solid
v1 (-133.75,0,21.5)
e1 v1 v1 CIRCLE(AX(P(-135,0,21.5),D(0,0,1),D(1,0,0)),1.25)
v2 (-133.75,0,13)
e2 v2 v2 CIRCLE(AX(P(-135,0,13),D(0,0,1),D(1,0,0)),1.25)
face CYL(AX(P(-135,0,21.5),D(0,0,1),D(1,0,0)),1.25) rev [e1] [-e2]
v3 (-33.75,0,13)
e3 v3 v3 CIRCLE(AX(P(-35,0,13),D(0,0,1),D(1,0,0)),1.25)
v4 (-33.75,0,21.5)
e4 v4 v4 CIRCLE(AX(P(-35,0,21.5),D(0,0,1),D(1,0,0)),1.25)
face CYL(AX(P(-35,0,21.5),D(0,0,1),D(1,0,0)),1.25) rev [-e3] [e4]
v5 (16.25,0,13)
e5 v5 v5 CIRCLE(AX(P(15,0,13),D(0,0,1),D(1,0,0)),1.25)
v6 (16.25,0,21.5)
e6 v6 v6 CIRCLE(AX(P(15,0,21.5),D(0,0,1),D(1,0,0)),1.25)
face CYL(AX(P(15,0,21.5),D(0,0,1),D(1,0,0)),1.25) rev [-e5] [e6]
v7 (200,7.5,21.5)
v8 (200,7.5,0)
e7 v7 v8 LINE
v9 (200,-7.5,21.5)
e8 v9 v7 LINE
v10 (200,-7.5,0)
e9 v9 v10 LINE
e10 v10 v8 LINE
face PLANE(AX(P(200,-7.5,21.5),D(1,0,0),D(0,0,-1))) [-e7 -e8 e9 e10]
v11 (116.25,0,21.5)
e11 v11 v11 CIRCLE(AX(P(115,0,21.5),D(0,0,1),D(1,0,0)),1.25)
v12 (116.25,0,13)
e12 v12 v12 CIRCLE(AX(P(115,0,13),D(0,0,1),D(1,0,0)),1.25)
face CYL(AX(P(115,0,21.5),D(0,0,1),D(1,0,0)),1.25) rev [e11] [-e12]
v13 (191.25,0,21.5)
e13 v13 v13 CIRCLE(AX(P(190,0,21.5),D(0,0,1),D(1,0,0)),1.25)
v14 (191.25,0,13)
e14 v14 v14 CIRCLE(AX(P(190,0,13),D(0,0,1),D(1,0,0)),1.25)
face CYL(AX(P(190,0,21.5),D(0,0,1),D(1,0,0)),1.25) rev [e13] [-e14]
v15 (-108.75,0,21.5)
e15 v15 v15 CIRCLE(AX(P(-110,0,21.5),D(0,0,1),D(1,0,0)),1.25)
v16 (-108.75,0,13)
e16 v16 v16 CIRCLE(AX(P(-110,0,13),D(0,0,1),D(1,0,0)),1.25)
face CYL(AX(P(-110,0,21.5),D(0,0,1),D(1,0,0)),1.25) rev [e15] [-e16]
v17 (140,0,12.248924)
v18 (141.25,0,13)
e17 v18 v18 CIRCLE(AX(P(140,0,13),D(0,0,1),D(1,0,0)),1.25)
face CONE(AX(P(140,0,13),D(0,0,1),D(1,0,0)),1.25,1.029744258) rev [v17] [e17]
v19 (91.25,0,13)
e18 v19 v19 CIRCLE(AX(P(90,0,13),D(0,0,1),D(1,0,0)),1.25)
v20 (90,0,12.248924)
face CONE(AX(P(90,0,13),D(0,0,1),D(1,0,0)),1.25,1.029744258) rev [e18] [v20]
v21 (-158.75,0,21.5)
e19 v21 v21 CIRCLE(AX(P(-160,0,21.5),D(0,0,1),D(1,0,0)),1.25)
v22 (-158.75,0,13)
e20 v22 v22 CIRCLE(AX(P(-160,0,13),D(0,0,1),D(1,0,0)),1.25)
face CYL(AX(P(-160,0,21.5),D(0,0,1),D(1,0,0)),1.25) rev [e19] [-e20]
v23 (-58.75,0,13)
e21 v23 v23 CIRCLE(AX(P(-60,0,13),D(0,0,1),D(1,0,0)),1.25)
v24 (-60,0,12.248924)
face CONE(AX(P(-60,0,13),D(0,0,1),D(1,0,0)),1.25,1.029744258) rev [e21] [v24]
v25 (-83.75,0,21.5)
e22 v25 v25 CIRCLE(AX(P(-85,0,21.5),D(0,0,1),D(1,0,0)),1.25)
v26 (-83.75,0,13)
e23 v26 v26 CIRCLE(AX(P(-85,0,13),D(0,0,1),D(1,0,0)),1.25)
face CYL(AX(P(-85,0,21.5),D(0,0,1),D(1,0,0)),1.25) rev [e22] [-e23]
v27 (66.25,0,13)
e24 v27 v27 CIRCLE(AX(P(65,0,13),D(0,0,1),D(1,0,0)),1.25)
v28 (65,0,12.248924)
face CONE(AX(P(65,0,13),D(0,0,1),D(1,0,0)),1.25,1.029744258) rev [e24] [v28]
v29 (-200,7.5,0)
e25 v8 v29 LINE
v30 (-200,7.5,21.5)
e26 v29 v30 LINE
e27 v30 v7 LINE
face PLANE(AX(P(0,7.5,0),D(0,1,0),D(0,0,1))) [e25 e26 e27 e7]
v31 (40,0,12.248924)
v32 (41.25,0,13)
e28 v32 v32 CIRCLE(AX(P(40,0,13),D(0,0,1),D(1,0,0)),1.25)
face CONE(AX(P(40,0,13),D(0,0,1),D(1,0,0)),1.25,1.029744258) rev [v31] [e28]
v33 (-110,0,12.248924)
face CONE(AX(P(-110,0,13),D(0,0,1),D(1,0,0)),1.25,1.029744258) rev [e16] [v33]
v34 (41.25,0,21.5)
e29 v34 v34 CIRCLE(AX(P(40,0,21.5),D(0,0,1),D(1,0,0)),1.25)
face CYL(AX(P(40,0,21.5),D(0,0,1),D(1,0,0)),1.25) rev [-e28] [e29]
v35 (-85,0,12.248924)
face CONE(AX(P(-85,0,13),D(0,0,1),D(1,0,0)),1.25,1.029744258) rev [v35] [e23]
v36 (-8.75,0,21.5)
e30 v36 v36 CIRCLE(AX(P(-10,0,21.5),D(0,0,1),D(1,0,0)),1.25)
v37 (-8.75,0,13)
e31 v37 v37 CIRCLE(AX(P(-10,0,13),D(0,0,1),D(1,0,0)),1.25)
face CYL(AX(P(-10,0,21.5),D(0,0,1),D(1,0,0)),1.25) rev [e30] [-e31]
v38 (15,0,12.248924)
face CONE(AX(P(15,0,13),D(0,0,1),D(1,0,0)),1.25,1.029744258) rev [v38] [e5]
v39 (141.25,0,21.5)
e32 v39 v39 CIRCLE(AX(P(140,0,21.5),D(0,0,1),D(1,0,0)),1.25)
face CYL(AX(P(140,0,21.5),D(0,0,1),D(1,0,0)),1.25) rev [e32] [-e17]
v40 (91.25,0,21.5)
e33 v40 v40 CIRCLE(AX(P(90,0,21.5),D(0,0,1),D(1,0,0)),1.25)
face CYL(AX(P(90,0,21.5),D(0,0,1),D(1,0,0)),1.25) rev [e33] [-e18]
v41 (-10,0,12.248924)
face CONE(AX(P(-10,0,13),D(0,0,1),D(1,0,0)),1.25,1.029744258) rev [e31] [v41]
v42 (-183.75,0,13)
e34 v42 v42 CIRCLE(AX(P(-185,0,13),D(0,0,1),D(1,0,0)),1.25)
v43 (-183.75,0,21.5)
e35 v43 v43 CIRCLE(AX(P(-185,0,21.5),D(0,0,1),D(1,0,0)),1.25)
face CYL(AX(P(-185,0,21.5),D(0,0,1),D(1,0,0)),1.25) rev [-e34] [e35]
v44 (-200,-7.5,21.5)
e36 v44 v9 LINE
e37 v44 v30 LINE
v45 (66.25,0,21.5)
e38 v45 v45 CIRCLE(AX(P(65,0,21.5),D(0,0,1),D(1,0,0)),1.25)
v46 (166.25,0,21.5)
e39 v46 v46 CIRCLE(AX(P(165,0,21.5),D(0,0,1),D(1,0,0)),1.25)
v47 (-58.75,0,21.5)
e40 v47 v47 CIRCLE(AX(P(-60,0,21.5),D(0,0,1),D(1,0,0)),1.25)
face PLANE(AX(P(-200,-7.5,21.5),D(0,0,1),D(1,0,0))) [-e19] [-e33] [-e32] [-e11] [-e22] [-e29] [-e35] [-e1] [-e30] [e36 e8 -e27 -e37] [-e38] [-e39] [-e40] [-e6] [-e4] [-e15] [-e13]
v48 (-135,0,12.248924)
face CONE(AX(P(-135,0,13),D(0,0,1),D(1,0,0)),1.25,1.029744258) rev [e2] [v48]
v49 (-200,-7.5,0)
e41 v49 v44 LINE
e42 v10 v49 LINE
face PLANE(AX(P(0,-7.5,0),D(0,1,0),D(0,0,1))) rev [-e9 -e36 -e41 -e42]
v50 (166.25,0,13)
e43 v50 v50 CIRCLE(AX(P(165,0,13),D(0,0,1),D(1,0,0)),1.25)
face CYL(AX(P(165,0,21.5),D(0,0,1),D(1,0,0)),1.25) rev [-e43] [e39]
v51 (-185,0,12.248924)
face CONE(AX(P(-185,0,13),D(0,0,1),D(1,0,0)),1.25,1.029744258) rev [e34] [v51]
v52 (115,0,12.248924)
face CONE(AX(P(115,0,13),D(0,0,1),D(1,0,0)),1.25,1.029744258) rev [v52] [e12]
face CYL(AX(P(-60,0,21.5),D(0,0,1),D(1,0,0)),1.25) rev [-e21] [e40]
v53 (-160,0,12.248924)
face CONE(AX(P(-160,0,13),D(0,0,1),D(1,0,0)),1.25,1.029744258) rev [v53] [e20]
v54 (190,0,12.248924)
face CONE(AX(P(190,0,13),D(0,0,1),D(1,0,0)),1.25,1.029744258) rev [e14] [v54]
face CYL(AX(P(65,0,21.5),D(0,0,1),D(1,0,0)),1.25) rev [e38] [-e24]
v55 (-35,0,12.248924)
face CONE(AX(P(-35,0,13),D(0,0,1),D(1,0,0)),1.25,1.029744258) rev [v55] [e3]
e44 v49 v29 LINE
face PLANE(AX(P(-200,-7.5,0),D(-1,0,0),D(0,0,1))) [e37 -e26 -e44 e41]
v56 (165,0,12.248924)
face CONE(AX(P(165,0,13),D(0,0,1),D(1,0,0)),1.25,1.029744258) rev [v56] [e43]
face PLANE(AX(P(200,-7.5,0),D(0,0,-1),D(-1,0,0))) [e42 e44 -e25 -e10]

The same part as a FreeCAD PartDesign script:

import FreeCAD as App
import Part
import Sketcher
from FreeCAD import Vector

doc = App.newDocument("Part")
body = doc.addObject("PartDesign::Body", "Body")

# Sketch on XZ plane
sketch1 = body.newObject("Sketcher::SketchObject", "Sketch")
sketch1.AttachmentSupport = (doc.getObject("XZ_Plane"), [""])
sketch1.MapMode = "FlatFace"
sketch1.AttachmentOffset = App.Placement(Vector(0, 0, -7.5), App.Rotation())
sketch1.addGeometry([
    Part.LineSegment(Vector(-200, 0, 0), Vector(-200, 22, 0)),
    Part.LineSegment(Vector(-200, 22, 0), Vector(200, 22, 0)),
    Part.LineSegment(Vector(200, 22, 0), Vector(200, 0, 0)),
    Part.LineSegment(Vector(200, 0, 0), Vector(-200, 0, 0)),
], False)
sketch1.addConstraint([
    Sketcher.Constraint("Coincident", 0, 2, 1, 1),
    Sketcher.Constraint("Coincident", 1, 2, 2, 1),
    Sketcher.Constraint("Coincident", 2, 2, 3, 1),
    Sketcher.Constraint("Coincident", 3, 2, 0, 1),
    Sketcher.Constraint("Vertical", 0),
    Sketcher.Constraint("Horizontal", 1),
    Sketcher.Constraint("Vertical", 2),
    Sketcher.Constraint("Horizontal", 3),
    Sketcher.Constraint("Symmetric", 2, 2, 3, 2, -1, 1),
    Sketcher.Constraint("DistanceX", 1, 1, 1, 2, 400.0),
    Sketcher.Constraint("DistanceY", 0, 1, 0, 2, 21.5),
])
pad1 = body.newObject("PartDesign::Pad", "Pad")
pad1.Profile = sketch1
pad1.Length = 15

# Sketch on XY plane
sketch2 = body.newObject("Sketcher::SketchObject", "Sketch001")
sketch2.AttachmentSupport = (doc.getObject("XY_Plane"), [""])
sketch2.MapMode = "FlatFace"
sketch2.AttachmentOffset = App.Placement(Vector(0, 0, 21.5), App.Rotation())
sketch2.addGeometry([
    Part.Circle(Vector(-185, 0, 0), Vector(0, 0, 1), 1.2),  # 0
    Part.Circle(Vector(-160, 0, 0), Vector(0, 0, 1), 1.2),  # 1
    Part.Circle(Vector(-135, 0, 0), Vector(0, 0, 1), 1.2),  # 2
    Part.Circle(Vector(-110, 0, 0), Vector(0, 0, 1), 1.2),  # 3
    Part.Circle(Vector(-85, 0, 0), Vector(0, 0, 1), 1.2),  # 4
    Part.Circle(Vector(-60, 0, 0), Vector(0, 0, 1), 1.2),  # 5
    Part.Circle(Vector(-35, 0, 0), Vector(0, 0, 1), 1.2),  # 6
    Part.Circle(Vector(-10, 0, 0), Vector(0, 0, 1), 1.2),  # 7
    Part.Circle(Vector(15, 0, 0), Vector(0, 0, 1), 1.2),  # 8
    Part.Circle(Vector(40, 0, 0), Vector(0, 0, 1), 1.2),  # 9
    Part.Circle(Vector(65, 0, 0), Vector(0, 0, 1), 1.2),  # 10
    Part.Circle(Vector(90, 0, 0), Vector(0, 0, 1), 1.2),  # 11
    Part.Circle(Vector(115, 0, 0), Vector(0, 0, 1), 1.2),  # 12
    Part.Circle(Vector(140, 0, 0), Vector(0, 0, 1), 1.2),  # 13
    Part.Circle(Vector(190, 0, 0), Vector(0, 0, 1), 1.2),  # 14
    Part.Circle(Vector(165, 0, 0), Vector(0, 0, 1), 1.2),  # 15
], False)
sketch2.addConstraint([
    Sketcher.Constraint("Equal", 0, 1),
    Sketcher.Constraint("Equal", 1, 2),
    Sketcher.Constraint("Equal", 2, 3),
    Sketcher.Constraint("Equal", 3, 4),
    Sketcher.Constraint("Equal", 4, 5),
    Sketcher.Constraint("Equal", 5, 6),
    Sketcher.Constraint("Equal", 6, 7),
    Sketcher.Constraint("Equal", 7, 8),
    Sketcher.Constraint("Equal", 8, 9),
    Sketcher.Constraint("Equal", 9, 10),
    Sketcher.Constraint("Equal", 10, 11),
    Sketcher.Constraint("Equal", 11, 12),
    Sketcher.Constraint("Equal", 12, 13),
    Sketcher.Constraint("Equal", 13, 14),
    Sketcher.Constraint("Equal", 14, 15),
    Sketcher.Constraint("PointOnObject", 0, 3, -1),
    Sketcher.Constraint("PointOnObject", 1, 3, -1),
    Sketcher.Constraint("PointOnObject", 2, 3, -1),
    Sketcher.Constraint("PointOnObject", 3, 3, -1),
    Sketcher.Constraint("PointOnObject", 4, 3, -1),
    Sketcher.Constraint("PointOnObject", 5, 3, -1),
    Sketcher.Constraint("PointOnObject", 6, 3, -1),
    Sketcher.Constraint("PointOnObject", 7, 3, -1),
    Sketcher.Constraint("PointOnObject", 8, 3, -1),
    Sketcher.Constraint("PointOnObject", 9, 3, -1),
    Sketcher.Constraint("PointOnObject", 10, 3, -1),
    Sketcher.Constraint("PointOnObject", 11, 3, -1),
    Sketcher.Constraint("PointOnObject", 12, 3, -1),
    Sketcher.Constraint("PointOnObject", 13, 3, -1),
    Sketcher.Constraint("PointOnObject", 14, 3, -1),
    Sketcher.Constraint("PointOnObject", 15, 3, -1),
    Sketcher.Constraint("Diameter", 0, 2.5),
    Sketcher.Constraint("DistanceX", 0, 3, -1, 1, 185.0),
    Sketcher.Constraint("DistanceX", 1, 3, -1, 1, 160.0),
    Sketcher.Constraint("DistanceX", 2, 3, -1, 1, 135.0),
    Sketcher.Constraint("DistanceX", 3, 3, -1, 1, 110.0),
    Sketcher.Constraint("DistanceX", 4, 3, -1, 1, 85.0),
    Sketcher.Constraint("DistanceX", 5, 3, -1, 1, 60.0),
    Sketcher.Constraint("DistanceX", 6, 3, -1, 1, 35.0),
    Sketcher.Constraint("DistanceX", 7, 3, -1, 1, 10.0),
    Sketcher.Constraint("DistanceX", -1, 1, 8, 3, 15.0),
    Sketcher.Constraint("DistanceX", -1, 1, 9, 3, 40.0),
    Sketcher.Constraint("DistanceX", -1, 1, 10, 3, 65.0),
    Sketcher.Constraint("DistanceX", -1, 1, 11, 3, 90.0),
    Sketcher.Constraint("DistanceX", -1, 1, 12, 3, 115.0),
    Sketcher.Constraint("DistanceX", -1, 1, 13, 3, 140.0),
    Sketcher.Constraint("DistanceX", -1, 1, 14, 3, 190.0),
    Sketcher.Constraint("DistanceX", -1, 1, 15, 3, 165.0),
])
doc.recompute()
hole = body.newObject("PartDesign::Hole", "Hole")
hole.Profile = sketch2
hole.ThreadType = "None"
hole.Diameter = 2.5
hole.DepthType = "Dimension"
hole.Depth = 8.5
hole.DrillPoint = "Angled"
hole.DrillPointAngle = 118

doc.recompute()
